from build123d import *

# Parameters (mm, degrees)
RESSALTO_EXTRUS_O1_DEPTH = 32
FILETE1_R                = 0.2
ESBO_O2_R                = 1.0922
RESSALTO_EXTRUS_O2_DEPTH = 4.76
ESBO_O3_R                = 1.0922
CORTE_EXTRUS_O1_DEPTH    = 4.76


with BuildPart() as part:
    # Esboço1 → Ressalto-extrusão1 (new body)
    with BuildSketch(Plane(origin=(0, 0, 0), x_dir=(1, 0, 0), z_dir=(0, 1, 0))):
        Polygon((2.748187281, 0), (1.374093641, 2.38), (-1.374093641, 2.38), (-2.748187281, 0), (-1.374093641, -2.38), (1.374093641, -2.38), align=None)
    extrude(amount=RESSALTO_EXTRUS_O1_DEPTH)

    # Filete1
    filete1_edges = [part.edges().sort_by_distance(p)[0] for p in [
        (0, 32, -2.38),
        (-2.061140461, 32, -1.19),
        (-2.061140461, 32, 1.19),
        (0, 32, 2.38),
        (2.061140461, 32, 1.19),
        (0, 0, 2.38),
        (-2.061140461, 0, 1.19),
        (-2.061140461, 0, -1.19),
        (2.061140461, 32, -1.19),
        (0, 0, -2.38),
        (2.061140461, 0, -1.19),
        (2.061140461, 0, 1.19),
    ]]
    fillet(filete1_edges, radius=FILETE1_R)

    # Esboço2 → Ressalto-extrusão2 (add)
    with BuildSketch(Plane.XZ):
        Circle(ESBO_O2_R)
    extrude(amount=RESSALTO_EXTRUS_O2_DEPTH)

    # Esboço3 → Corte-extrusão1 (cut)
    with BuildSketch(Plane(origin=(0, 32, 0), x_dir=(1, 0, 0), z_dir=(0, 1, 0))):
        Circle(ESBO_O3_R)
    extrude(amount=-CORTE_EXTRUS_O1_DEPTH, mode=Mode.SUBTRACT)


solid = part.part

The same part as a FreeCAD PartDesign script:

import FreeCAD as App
import Part
import Sketcher

V = App.Vector
Q = App.Units.Quantity


def edges_at(feature, points):
    """Names of the edges that pass closest to the given points."""
    edges = feature.Shape.Edges
    near = lambda p: min(range(len(edges)), key=lambda i: edges[i].distToShape(Part.Vertex(*p))[0])
    return sorted({f"Edge{near(p) + 1}" for p in points})

doc = App.newDocument("Part")
body = doc.addObject("PartDesign::Body", "Body")

# Sketch on XZ plane
sketch1 = doc.addObject("Sketcher::SketchObject", "Sketch")
body.addObject(sketch1)
sketch1.AttachmentSupport = (doc.XZ_Plane, [""])
sketch1.MapMode = "FlatFace"
sketch1.addGeometry(Part.LineSegment(V(2.7, 0, 0), V(1.4, -2.4, 0)), False)
sketch1.addGeometry(Part.LineSegment(V(1.4, -2.4, 0), V(-1.4, -2.4, 0)), False)
sketch1.addGeometry(Part.LineSegment(V(-1.4, -2.4, 0), V(-2.7, 0, 0)), False)
sketch1.addGeometry(Part.LineSegment(V(-2.7, 0, 0), V(-1.4, 2.4, 0)), False)
sketch1.addGeometry(Part.LineSegment(V(-1.4, 2.4, 0), V(1.4, 2.4, 0)), False)
sketch1.addGeometry(Part.LineSegment(V(1.4, 2.4, 0), V(2.7, 0, 0)), False)
sketch1.addConstraint(Sketcher.Constraint("Coincident", 0, 2, 1, 1))
sketch1.addConstraint(Sketcher.Constraint("Coincident", 1, 2, 2, 1))
sketch1.addConstraint(Sketcher.Constraint("Coincident", 2, 2, 3, 1))
sketch1.addConstraint(Sketcher.Constraint("Coincident", 3, 2, 4, 1))
sketch1.addConstraint(Sketcher.Constraint("Coincident", 4, 2, 5, 1))
sketch1.addConstraint(Sketcher.Constraint("Coincident", 5, 2, 0, 1))
sketch1.addConstraint(Sketcher.Constraint("Horizontal", 1))
sketch1.addConstraint(Sketcher.Constraint("Horizontal", 4))
sketch1.addConstraint(Sketcher.Constraint("Symmetric", 0, 2, 3, 2, -1, 1))
sketch1.addConstraint(Sketcher.Constraint("Symmetric", 2, 2, 5, 2, -1, 1))
sketch1.addConstraint(Sketcher.Constraint("PointOnObject", 2, 2, -1))
sketch1.addConstraint(Sketcher.Constraint("Parallel", 2, 5))
sketch1.addConstraint(Sketcher.Constraint("Vertical", 1, 2, 3, 2))
sketch1.addConstraint(Sketcher.Constraint("Angle", 0, Q("-120 deg")))
sketch1.addConstraint(Sketcher.Constraint("DistanceY", 0, 2, -1, 1, 2.38))
sketch1.addConstraint(Sketcher.Constraint("DistanceX", 1, 2, 1, 1, 2.748187))
pad1 = doc.addObject("PartDesign::Pad", "Pad")
body.addObject(pad1)
pad1.Profile = sketch1
pad1.Length = 32
pad1.Reversed = True
doc.recompute()

fillet = doc.addObject("PartDesign::Fillet", "Fillet")
body.addObject(fillet)
fillet.Base = (pad1, edges_at(pad1, [
    (0, 32, -2.38),
    (-2.061, 32, -1.19),
    (-2.061, 32, 1.19),
    (0, 32, 2.38),
    (2.061, 32, 1.19),
    (0, 0, 2.38),
    (-2.061, 0, 1.19),
    (-2.061, 0, -1.19),
    (2.061, 32, -1.19),
    (0, 0, -2.38),
    (2.061, 0, -1.19),
    (2.061, 0, 1.19),
]))
fillet.Radius = 0.2

# Sketch on XZ plane
sketch2 = doc.addObject("Sketcher::SketchObject", "Sketch001")
body.addObject(sketch2)
sketch2.AttachmentSupport = (doc.XZ_Plane, [""])
sketch2.MapMode = "FlatFace"
sketch2.addGeometry(Part.Circle(V(0, 0, 0), V(0, 0, 1), 1.1), False)
sketch2.addConstraint(Sketcher.Constraint("Coincident", 0, 3, -1, 1))
sketch2.addConstraint(Sketcher.Constraint("Diameter", 0, 2.1844))
pad2 = doc.addObject("PartDesign::Pad", "Pad001")
body.addObject(pad2)
pad2.Profile = sketch2
pad2.Length = 4.76

# Sketch on XZ plane
sketch3 = doc.addObject("Sketcher::SketchObject", "Sketch002")
body.addObject(sketch3)
sketch3.AttachmentSupport = (doc.XZ_Plane, [""])
sketch3.MapMode = "FlatFace"
sketch3.AttachmentOffset = App.Placement(V(0, 0, -32), App.Rotation())
sketch3.addGeometry(Part.Circle(V(0, 0, 0), V(0, 0, 1), 1.1), False)
sketch3.addConstraint(Sketcher.Constraint("Coincident", 0, 3, -1, 1))
sketch3.addConstraint(Sketcher.Constraint("Diameter", 0, 2.1844))
pocket1 = doc.addObject("PartDesign::Pocket", "Pocket")
body.addObject(pocket1)
pocket1.Profile = sketch3
pocket1.Length = 4.76
pocket1.Reversed = True

doc.recompute()
